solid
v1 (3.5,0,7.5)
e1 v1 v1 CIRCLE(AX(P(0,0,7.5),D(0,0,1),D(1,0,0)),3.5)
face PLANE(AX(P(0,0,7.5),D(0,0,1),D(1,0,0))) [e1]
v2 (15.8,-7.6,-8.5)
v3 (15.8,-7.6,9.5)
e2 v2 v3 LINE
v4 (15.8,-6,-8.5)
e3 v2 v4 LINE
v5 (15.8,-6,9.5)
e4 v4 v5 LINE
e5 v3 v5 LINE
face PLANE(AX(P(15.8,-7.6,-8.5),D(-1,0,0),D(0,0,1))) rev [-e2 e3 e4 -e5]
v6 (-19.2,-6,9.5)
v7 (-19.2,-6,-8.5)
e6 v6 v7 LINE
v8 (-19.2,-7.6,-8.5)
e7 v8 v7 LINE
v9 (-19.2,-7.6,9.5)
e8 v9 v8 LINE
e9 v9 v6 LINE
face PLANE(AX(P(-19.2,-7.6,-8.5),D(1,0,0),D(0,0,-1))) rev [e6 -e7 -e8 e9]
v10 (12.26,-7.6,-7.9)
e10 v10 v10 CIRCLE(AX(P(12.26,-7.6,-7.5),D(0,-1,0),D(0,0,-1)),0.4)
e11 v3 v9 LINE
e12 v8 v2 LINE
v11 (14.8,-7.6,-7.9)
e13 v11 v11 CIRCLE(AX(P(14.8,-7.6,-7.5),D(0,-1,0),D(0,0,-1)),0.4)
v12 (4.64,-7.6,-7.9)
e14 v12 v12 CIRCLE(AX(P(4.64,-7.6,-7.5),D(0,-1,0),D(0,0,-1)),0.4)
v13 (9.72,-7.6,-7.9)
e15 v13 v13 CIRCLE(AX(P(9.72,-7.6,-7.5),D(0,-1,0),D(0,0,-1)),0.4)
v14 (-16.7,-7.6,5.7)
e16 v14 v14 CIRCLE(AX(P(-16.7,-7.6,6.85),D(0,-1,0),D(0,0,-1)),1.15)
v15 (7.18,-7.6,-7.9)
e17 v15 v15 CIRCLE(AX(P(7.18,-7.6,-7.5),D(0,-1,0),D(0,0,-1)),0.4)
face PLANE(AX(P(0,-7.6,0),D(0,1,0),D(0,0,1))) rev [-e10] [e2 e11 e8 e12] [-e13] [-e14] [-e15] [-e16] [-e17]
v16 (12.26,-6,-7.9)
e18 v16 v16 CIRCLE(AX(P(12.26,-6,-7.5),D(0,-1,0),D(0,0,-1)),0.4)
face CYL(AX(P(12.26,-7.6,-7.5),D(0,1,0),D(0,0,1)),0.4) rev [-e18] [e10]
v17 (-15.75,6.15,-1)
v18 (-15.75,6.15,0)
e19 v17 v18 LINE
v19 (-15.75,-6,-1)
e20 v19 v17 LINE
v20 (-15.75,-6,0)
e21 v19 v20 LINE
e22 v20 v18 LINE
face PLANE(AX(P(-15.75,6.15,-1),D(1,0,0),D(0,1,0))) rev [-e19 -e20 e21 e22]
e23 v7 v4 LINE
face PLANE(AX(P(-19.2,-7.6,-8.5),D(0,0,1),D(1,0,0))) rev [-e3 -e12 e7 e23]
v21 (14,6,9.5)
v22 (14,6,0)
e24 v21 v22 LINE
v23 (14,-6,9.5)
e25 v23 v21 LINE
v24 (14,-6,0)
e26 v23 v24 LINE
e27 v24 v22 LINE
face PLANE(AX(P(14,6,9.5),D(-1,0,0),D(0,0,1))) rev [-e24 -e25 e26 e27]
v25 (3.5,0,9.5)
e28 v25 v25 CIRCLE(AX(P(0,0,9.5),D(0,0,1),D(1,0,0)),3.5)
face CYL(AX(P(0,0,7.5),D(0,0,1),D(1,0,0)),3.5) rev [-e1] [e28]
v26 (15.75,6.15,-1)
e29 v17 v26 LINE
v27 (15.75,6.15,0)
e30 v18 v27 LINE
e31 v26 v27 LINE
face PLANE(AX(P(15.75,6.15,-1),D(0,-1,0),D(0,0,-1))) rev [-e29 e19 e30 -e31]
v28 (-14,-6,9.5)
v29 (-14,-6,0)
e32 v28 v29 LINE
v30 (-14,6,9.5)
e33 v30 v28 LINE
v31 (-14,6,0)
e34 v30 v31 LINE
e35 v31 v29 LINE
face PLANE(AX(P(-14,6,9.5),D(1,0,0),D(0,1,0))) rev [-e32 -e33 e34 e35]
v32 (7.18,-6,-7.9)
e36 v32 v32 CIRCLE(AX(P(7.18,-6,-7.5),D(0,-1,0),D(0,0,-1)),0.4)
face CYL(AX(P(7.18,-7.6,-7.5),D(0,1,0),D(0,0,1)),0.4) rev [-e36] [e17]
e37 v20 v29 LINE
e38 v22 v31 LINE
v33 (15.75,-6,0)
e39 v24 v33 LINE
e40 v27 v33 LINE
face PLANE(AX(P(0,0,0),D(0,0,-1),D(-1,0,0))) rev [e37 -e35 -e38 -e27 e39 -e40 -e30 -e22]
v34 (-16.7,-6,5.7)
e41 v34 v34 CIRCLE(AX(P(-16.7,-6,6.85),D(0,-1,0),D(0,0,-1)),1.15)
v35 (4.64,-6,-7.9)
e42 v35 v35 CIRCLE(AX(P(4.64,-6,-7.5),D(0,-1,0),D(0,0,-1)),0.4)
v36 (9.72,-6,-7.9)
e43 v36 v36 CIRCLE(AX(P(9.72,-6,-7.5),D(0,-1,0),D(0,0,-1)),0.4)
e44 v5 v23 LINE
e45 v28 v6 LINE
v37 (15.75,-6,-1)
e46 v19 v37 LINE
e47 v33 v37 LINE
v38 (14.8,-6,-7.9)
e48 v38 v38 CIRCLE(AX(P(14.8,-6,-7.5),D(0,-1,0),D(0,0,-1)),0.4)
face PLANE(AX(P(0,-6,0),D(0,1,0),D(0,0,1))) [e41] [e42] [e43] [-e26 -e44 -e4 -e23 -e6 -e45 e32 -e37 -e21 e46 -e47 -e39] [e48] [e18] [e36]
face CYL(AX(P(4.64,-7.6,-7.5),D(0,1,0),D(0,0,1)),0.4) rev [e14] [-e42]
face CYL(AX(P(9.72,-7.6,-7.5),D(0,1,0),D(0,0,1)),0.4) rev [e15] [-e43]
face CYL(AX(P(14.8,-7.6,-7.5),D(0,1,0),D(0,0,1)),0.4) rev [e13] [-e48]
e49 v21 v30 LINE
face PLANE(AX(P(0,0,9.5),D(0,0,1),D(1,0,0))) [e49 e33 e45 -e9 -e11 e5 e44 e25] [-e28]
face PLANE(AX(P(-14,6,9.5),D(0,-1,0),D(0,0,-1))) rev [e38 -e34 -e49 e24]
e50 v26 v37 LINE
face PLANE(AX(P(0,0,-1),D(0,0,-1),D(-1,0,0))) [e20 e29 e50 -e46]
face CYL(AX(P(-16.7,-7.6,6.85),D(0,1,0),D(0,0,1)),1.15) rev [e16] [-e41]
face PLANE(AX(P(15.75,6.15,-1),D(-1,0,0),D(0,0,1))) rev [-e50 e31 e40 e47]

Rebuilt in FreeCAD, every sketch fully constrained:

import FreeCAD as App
import Part
import Sketcher

V = App.Vector
Q = App.Units.Quantity

doc = App.newDocument("Part")
body = doc.addObject("PartDesign::Body", "Body")

# Sketch on XY plane
sketch1 = body.newObject("Sketcher::SketchObject", "Sketch")
sketch1.AttachmentSupport = (doc.getObject("XY_Plane"), [""])
sketch1.MapMode = "FlatFace"
sketch1.addGeometry([
    Part.LineSegment(V(-14, 6, 0), V(-14, -6, 0)),
    Part.LineSegment(V(-14, -6, 0), V(14, -6, 0)),
    Part.LineSegment(V(14, -6, 0), V(14, 6, 0)),
    Part.LineSegment(V(14, 6, 0), V(-14, 6, 0)),
], False)
sketch1.addConstraint([
    Sketcher.Constraint("Coincident", 0, 2, 1, 1),
    Sketcher.Constraint("Coincident", 1, 2, 2, 1),
    Sketcher.Constraint("Coincident", 2, 2, 3, 1),
    Sketcher.Constraint("Coincident", 3, 2, 0, 1),
    Sketcher.Constraint("Vertical", 0),
    Sketcher.Constraint("Horizontal", 1),
    Sketcher.Constraint("Vertical", 2),
    Sketcher.Constraint("Horizontal", 3),
    Sketcher.Constraint("Symmetric", 0, 2, 2, 2, -1, 1),
    Sketcher.Constraint("DistanceX", 1, 1, 1, 2, Q("28 mm")),
    Sketcher.Constraint("DistanceY", 0, 2, 0, 1, Q("12 mm")),
])
pad1 = body.newObject("PartDesign::Pad", "Pad")
pad1.Profile = sketch1
pad1.Length = 9.5

# Sketch on XY plane
sketch2 = body.newObject("Sketcher::SketchObject", "Sketch001")
sketch2.AttachmentSupport = (doc.getObject("XY_Plane"), [""])
sketch2.MapMode = "FlatFace"
sketch2.addGeometry([
    Part.LineSegment(V(15.75, 6.15, 0), V(15.75, -6.15, 0)),
    Part.LineSegment(V(15.75, -6.15, 0), V(-15.75, -6.15, 0)),
    Part.LineSegment(V(-15.75, -6.15, 0), V(-15.75, 6.15, 0)),
    Part.LineSegment(V(-15.75, 6.15, 0), V(15.75, 6.15, 0)),
], False)
sketch2.addConstraint([
    Sketcher.Constraint("Coincident", 0, 2, 1, 1),
    Sketcher.Constraint("Coincident", 1, 2, 2, 1),
    Sketcher.Constraint("Coincident", 2, 2, 3, 1),
    Sketcher.Constraint("Coincident", 3, 2, 0, 1),
    Sketcher.Constraint("Vertical", 0),
    Sketcher.Constraint("Horizontal", 1),
    Sketcher.Constraint("Vertical", 2),
    Sketcher.Constraint("Horizontal", 3),
    Sketcher.Constraint("Symmetric", 0, 2, 2, 2, -1, 1),
    Sketcher.Constraint("DistanceX", 1, 2, 1, 1, Q("31.5 mm")),
    Sketcher.Constraint("DistanceY", 0, 2, 0, 1, Q("12.3 mm")),
])
pad2 = body.newObject("PartDesign::Pad", "Pad001")
pad2.Profile = sketch2
pad2.Length = 1
pad2.Reversed = True

# Sketch on XZ plane
sketch3 = body.newObject("Sketcher::SketchObject", "Sketch002")
sketch3.AttachmentSupport = (doc.getObject("XZ_Plane"), [""])
sketch3.MapMode = "FlatFace"
sketch3.AttachmentOffset = App.Placement(V(0, 0, 6), App.Rotation())
sketch3.addGeometry([
    Part.LineSegment(V(-19.2, 9.5, 0), V(-19.2, -8.5, 0)),  # 0
    Part.LineSegment(V(-19.2, -8.5, 0), V(15.8, -8.5, 0)),  # 1
    Part.LineSegment(V(15.8, -8.5, 0), V(15.8, 9.5, 0)),  # 2
    Part.LineSegment(V(15.8, 9.5, 0), V(-19.2, 9.5, 0)),  # 3
    Part.Circle(V(4.64, -7.5, 0), V(0, 0, 1), 0.4),  # 4
    Part.Circle(V(7.18, -7.5, 0), V(0, 0, 1), 0.4),  # 5
    Part.Circle(V(9.72, -7.5, 0), V(0, 0, 1), 0.4),  # 6
    Part.Circle(V(12.26, -7.5, 0), V(0, 0, 1), 0.4),  # 7
    Part.Circle(V(14.8, -7.5, 0), V(0, 0, 1), 0.4),  # 8
    Part.Circle(V(-16.7, 6.85, 0), V(0, 0, 1), 1.15),  # 9
], False)
sketch3.addConstraint([
    Sketcher.Constraint("Coincident", 0, 2, 1, 1),
    Sketcher.Constraint("Coincident", 1, 2, 2, 1),
    Sketcher.Constraint("Coincident", 2, 2, 3, 1),
    Sketcher.Constraint("Coincident", 3, 2, 0, 1),
    Sketcher.Constraint("Vertical", 0),
    Sketcher.Constraint("Horizontal", 1),
    Sketcher.Constraint("Vertical", 2),
    Sketcher.Constraint("Horizontal", 3),
    Sketcher.Constraint("Equal", 4, 5),
    Sketcher.Constraint("Equal", 5, 6),
    Sketcher.Constraint("Equal", 6, 7),
    Sketcher.Constraint("Equal", 7, 8),
    Sketcher.Constraint("Horizontal", 4, 3, 5, 3),
    Sketcher.Constraint("Horizontal", 5, 3, 6, 3),
    Sketcher.Constraint("Horizontal", 6, 3, 7, 3),
    Sketcher.Constraint("Horizontal", 7, 3, 8, 3),
    Sketcher.Constraint("Diameter", 4, Q("0.8 mm")),
    Sketcher.Constraint("Diameter", 9, Q("2.3 mm")),
    Sketcher.Constraint("DistanceX", 1, 1, 1, 2, Q("35 mm")),
    Sketcher.Constraint("DistanceY", 0, 2, 0, 1, Q("18 mm")),
    Sketcher.Constraint("DistanceY", 0, 2, 4, 3, Q("1 mm")),
    Sketcher.Constraint("DistanceX", 8, 3, 1, 2, Q("1 mm")),
    Sketcher.Constraint("DistanceY", 4, 3, -1, 1, Q("7.5 mm")),
    Sketcher.Constraint("DistanceX", -1, 1, 8, 3, Q("14.8 mm")),
    Sketcher.Constraint("DistanceX", 9, 3, -1, 1, Q("16.7 mm")),
    Sketcher.Constraint("DistanceX", -1, 1, 4, 3, Q("4.64 mm")),
    Sketcher.Constraint("DistanceX", -1, 1, 5, 3, Q("7.18 mm")),
    Sketcher.Constraint("DistanceX", -1, 1, 6, 3, Q("9.72 mm")),
    Sketcher.Constraint("DistanceX", -1, 1, 7, 3, Q("12.26 mm")),
    Sketcher.Constraint("DistanceY", -1, 1, 9, 3, Q("6.85 mm")),
])
pad3 = body.newObject("PartDesign::Pad", "Pad002")
pad3.Profile = sketch3
pad3.Length = 1.6

# Sketch on XY plane
sketch4 = body.newObject("Sketcher::SketchObject", "Sketch003")
sketch4.AttachmentSupport = (doc.getObject("XY_Plane"), [""])
sketch4.MapMode = "FlatFace"
sketch4.AttachmentOffset = App.Placement(V(0, 0, 9.5), App.Rotation())
sketch4.addGeometry(Part.Circle(V(0, 0, 0), V(0, 0, 1), 3.5), False)
sketch4.addConstraint([
    Sketcher.Constraint("Coincident", 0, 3, -1, 1),
    Sketcher.Constraint("Diameter", 0, Q("7 mm")),
])
pocket1 = body.newObject("PartDesign::Pocket", "Pocket")
pocket1.Profile = sketch4
pocket1.Length = 2

doc.recompute()
